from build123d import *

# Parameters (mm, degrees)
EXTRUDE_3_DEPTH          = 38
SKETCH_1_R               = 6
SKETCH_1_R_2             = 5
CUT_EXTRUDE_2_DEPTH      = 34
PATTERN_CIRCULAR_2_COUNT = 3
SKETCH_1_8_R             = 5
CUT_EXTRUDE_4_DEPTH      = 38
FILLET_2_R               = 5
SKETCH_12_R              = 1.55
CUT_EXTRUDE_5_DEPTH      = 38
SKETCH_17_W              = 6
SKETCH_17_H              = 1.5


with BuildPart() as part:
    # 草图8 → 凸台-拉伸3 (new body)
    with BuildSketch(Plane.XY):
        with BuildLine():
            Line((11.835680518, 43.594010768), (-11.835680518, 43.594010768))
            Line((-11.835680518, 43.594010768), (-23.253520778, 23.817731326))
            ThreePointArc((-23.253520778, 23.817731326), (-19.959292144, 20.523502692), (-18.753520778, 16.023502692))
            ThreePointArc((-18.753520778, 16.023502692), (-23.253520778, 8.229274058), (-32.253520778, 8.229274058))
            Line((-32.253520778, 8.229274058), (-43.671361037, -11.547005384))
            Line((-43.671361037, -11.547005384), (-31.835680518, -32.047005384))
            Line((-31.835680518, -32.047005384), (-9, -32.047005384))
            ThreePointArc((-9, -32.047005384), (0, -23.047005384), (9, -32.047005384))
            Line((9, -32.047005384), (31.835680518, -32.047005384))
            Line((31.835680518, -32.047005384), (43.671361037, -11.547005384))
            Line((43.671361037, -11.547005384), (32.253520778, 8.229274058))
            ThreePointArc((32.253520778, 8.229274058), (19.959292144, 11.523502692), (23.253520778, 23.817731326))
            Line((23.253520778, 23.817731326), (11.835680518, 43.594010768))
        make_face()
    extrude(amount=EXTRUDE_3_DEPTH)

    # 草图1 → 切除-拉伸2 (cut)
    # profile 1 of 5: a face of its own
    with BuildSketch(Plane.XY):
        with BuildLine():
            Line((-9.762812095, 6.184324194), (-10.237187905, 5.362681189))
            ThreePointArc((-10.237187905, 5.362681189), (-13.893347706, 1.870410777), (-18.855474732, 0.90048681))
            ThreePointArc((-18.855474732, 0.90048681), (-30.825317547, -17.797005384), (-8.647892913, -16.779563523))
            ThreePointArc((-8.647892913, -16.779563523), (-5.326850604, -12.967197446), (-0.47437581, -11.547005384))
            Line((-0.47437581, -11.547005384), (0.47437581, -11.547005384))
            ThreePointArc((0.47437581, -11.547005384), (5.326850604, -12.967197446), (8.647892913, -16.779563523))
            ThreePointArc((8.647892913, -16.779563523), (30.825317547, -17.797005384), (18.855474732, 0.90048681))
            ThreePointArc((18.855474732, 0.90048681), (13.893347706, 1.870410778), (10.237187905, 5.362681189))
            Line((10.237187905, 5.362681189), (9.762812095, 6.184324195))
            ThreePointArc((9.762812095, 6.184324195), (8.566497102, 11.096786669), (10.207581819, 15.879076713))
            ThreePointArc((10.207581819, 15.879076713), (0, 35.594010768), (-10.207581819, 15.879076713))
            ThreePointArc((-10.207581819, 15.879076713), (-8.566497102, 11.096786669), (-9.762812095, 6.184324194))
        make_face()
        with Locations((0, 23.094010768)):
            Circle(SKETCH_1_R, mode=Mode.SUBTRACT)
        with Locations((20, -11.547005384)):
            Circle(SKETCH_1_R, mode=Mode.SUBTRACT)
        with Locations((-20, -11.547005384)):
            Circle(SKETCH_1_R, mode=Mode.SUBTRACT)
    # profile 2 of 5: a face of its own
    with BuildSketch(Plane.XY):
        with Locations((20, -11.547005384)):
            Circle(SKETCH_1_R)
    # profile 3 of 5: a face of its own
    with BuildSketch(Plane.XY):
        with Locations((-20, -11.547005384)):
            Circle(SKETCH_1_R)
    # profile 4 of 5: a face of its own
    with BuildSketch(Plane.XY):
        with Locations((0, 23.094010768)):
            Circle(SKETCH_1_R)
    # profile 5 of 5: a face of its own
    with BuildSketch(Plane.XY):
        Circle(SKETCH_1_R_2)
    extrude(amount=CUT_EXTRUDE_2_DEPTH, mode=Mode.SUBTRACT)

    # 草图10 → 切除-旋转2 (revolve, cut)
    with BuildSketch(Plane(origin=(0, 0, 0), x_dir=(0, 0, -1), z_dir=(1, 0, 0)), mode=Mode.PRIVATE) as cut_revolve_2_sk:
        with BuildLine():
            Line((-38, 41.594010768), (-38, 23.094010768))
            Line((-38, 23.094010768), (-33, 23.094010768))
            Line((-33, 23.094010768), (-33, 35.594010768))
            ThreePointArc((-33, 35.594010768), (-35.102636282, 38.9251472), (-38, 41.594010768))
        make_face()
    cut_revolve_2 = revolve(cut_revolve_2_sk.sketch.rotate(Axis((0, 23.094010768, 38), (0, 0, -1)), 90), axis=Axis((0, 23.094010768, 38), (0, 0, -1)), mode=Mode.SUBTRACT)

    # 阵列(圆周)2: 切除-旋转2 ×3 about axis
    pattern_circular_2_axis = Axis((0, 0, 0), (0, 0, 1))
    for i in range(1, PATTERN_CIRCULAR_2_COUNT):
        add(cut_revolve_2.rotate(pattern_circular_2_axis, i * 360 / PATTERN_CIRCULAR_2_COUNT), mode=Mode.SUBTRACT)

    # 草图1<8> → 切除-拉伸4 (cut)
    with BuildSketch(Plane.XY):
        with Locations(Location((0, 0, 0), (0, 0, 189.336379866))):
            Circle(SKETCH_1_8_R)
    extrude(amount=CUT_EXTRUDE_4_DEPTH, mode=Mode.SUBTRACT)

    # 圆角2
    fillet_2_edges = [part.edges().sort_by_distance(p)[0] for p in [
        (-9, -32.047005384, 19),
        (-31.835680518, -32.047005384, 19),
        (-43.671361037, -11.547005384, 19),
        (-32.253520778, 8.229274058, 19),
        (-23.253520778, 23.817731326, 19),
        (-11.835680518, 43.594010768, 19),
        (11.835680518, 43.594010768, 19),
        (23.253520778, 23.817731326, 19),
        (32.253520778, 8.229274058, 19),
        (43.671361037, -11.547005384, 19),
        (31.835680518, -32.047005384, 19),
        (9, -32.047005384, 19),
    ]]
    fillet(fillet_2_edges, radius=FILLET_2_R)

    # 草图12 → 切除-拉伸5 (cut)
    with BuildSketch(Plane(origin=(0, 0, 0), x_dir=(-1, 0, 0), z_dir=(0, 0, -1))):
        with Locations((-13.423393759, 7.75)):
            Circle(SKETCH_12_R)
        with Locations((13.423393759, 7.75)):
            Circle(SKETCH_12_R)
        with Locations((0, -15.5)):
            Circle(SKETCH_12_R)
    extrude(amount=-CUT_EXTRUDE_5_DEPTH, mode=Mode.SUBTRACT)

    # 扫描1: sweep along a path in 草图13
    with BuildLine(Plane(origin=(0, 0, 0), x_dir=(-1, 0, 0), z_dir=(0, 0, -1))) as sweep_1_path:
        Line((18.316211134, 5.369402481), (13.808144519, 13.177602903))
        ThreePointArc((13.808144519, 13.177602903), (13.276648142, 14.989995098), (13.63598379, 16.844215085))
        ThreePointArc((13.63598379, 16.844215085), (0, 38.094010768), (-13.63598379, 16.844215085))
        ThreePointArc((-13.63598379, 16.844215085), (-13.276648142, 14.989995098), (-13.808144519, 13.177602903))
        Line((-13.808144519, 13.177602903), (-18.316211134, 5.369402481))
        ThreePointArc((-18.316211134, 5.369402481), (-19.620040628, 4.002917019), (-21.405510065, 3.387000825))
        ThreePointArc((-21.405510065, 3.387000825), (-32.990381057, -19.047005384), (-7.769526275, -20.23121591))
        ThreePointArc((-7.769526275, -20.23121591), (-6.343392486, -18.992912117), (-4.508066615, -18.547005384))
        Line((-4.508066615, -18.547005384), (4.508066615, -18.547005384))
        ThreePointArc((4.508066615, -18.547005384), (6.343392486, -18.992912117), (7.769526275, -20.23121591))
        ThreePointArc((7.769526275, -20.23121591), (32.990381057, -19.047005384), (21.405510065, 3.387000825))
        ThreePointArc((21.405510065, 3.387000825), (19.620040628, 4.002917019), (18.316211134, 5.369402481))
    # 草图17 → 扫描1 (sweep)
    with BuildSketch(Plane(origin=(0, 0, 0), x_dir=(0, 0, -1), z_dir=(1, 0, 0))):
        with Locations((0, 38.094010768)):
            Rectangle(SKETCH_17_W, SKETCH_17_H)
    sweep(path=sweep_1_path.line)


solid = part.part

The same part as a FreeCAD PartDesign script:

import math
import FreeCAD as App
import Part
import Sketcher

V = App.Vector
Q = App.Units.Quantity


def edges_at(feature, points):
    """Names of the edges that pass closest to the given points."""
    edges = feature.Shape.Edges
    near = lambda p: min(range(len(edges)), key=lambda i: edges[i].distToShape(Part.Vertex(*p))[0])
    return sorted({f"Edge{near(p) + 1}" for p in points})


def add_polygon(sketch, points):
    """Adds a closed chain of lines whose ends are joined by coincident constraints."""
    first, n = sketch.GeometryCount, len(points)
    for a, b in zip(points, points[1:] + points[:1]):
        sketch.addGeometry(Part.LineSegment(App.Vector(*a, 0), App.Vector(*b, 0)), False)
    for i in range(n):
        sketch.addConstraint(Sketcher.Constraint("Coincident", first + i, 2, first + (i + 1) % n, 1))

doc = App.newDocument("Part")
params = doc.addObject("Spreadsheet::Sheet", "Params")
for row, (alias, value) in enumerate([
    ("sketch1_radius", "9 mm"),
    ("pad1_length", "38 mm"),
    ("sketch2_radius", "9 mm"),
    ("sketch2_radius2", "12.5 mm"),
    ("pocket1_length", "34 mm"),
    ("sketch3_radius", "15 mm"),
    ("sketch3_height", "5 mm"),
    ("sketch3_width", "18.5 mm"),
    ("sketch3_width2", "12.5 mm"),
    ("groove_angle", "360 deg"),
    ("sketch4_diameter", "10 mm"),
    ("pocket2_length", "38 mm"),
    ("fillet_radius", "5 mm"),
    ("sketch5_diameter", "3.1 mm"),
    ("pocket3_length", "38 mm"),
    ("sketch6_height", "6 mm"),
    ("sketch6_width", "1.5 mm"),
    ("sketch7_radius", "4 mm"),
    ("sketch7_radius2", "15 mm"),
], start=1):
    params.set(f"A{row}", alias)
    params.set(f"B{row}", "=" + value)
    params.setAlias(f"B{row}", alias)

body = doc.addObject("PartDesign::Body", "Body")

sketch1 = body.newObject("Sketcher::SketchObject", "Sketch")
sketch1.AttachmentSupport = (doc.getObject("XY_Plane"), [""])
sketch1.MapMode = "FlatFace"
sketch1.addGeometry([
    Part.LineSegment(V(12, 44, 0), V(-12, 44, 0)),
    Part.LineSegment(V(-12, 44, 0), V(-23, 24, 0)),
    Part.ArcOfCircle(Part.Circle(V(-28, 16, 0), V(0, 0, 1), 9), math.radians(0), math.radians(60)),
    Part.ArcOfCircle(Part.Circle(V(-28, 16, 0), V(0, 0, 1), 9), math.radians(-120), math.radians(0)),
    Part.LineSegment(V(-32, 8, 0), V(-44, -12, 0)),
    Part.LineSegment(V(-44, -12, 0), V(-32, -32, 0)),
    Part.LineSegment(V(-32, -32, 0), V(-9, -32, 0)),
    Part.ArcOfCircle(Part.Circle(V(0, -32, 0), V(0, 0, 1), 9), math.radians(0), math.radians(180)),
    Part.LineSegment(V(9, -32, 0), V(32, -32, 0)),
    Part.LineSegment(V(32, -32, 0), V(44, -12, 0)),
    Part.LineSegment(V(44, -12, 0), V(32, 8, 0)),
    Part.ArcOfCircle(Part.Circle(V(28, 16, 0), V(0, 0, 1), 9), math.radians(120), math.radians(300)),
    Part.LineSegment(V(23, 24, 0), V(12, 44, 0)),
], False)
sketch1.addConstraint([
    Sketcher.Constraint("Coincident", 0, 2, 1, 1),
    Sketcher.Constraint("Coincident", 1, 2, 2, 2),
    Sketcher.Constraint("Tangent", 2, 1, 3, 2),
    Sketcher.Constraint("Coincident", 3, 1, 4, 1),
    Sketcher.Constraint("Coincident", 4, 2, 5, 1),
    Sketcher.Constraint("Coincident", 5, 2, 6, 1),
    Sketcher.Constraint("Coincident", 6, 2, 7, 2),
    Sketcher.Constraint("Coincident", 7, 1, 8, 1),
    Sketcher.Constraint("Coincident", 8, 2, 9, 1),
    Sketcher.Constraint("Coincident", 9, 2, 10, 1),
    Sketcher.Constraint("Coincident", 10, 2, 11, 2),
    Sketcher.Constraint("Coincident", 11, 1, 12, 1),
    Sketcher.Constraint("Coincident", 12, 2, 0, 1),
    Sketcher.Constraint("Horizontal", 0),
    Sketcher.Constraint("Horizontal", 6),
    Sketcher.Constraint("Horizontal", 8),
    Sketcher.Constraint("Equal", 2, 3),
    Sketcher.Constraint("Equal", 3, 7),
    Sketcher.Constraint("Equal", 7, 11),
    Sketcher.Constraint("Symmetric", 2, 3, 11, 3, -2),
    Sketcher.Constraint("Symmetric", 6, 2, 7, 1, -2),
    Sketcher.Constraint("Symmetric", 4, 2, 9, 2, -2),
    Sketcher.Constraint("Parallel", 1, 4),
    Sketcher.Constraint("Parallel", 4, 9),
    Sketcher.Constraint("Parallel", 5, 10),
    Sketcher.Constraint("Parallel", 10, 12),
    Sketcher.Constraint("Horizontal", 11, 3, 2, 1),
    Sketcher.Constraint("Horizontal", 7, 3, 5, 2),
    Sketcher.Constraint("Horizontal", 3, 1, 10, 2),
    Sketcher.Constraint("Horizontal", 1, 2, 11, 1),
    Sketcher.Constraint("Equal", 1, 4),
    Sketcher.Constraint("Radius", 2, Q("9 mm")),
    Sketcher.Constraint("Angle", 1, Q("-120 deg")),
    Sketcher.Constraint("DistanceX", 3, 1, 1, 2, Q("9 mm")),
    Sketcher.Constraint("DistanceX", 2, 3, 1, 2, Q("4.5 mm")),
    Sketcher.Constraint("DistanceY", 5, 2, 4, 2, Q("20.5 mm")),
    Sketcher.Constraint("DistanceX", 0, 2, 0, 1, Q("23.671361 mm")),
    Sketcher.Constraint("DistanceX", 6, 1, 6, 2, Q("22.835681 mm")),
    Sketcher.Constraint("DistanceY", -1, 1, 0, 2, Q("43.594011 mm")),
])
sketch1.setExpression("Constraints[31]", "Params.sketch1_radius")
pad1 = body.newObject("PartDesign::Pad", "Pad")
pad1.Profile = sketch1
pad1.setExpression("Length", "Params.pad1_length")

sketch2 = body.newObject("Sketcher::SketchObject", "Sketch001")
sketch2.AttachmentSupport = (doc.getObject("XY_Plane"), [""])
sketch2.MapMode = "FlatFace"
sketch2.addGeometry([
    Part.LineSegment(V(-9.8, 6.2, 0), V(-10.2, 5.4, 0)),
    Part.ArcOfCircle(Part.Circle(V(-18, 9.9, 0), V(0, 0, 1), 9), math.radians(-95), math.radians(-30)),
    Part.ArcOfCircle(Part.Circle(V(-20, -11.5, 0), V(0, 0, 1), 12.5), math.radians(85), math.radians(335)),
    Part.ArcOfCircle(Part.Circle(V(-0.5, -20.5, 0), V(0, 0, 1), 9), math.radians(90), math.radians(155)),
    Part.LineSegment(V(-0.5, -11.5, 0), V(0.5, -11.5, 0)),
    Part.ArcOfCircle(Part.Circle(V(0.5, -20.5, 0), V(0, 0, 1), 9), math.radians(25), math.radians(90)),
    Part.ArcOfCircle(Part.Circle(V(20, -11.5, 0), V(0, 0, 1), 12.5), math.radians(-155), math.radians(95)),
    Part.ArcOfCircle(Part.Circle(V(18, 9.9, 0), V(0, 0, 1), 9), math.radians(-150), math.radians(-85)),
    Part.LineSegment(V(10.2, 5.4, 0), V(9.8, 6.2, 0)),
    Part.ArcOfCircle(Part.Circle(V(17.6, 10.7, 0), V(0, 0, 1), 9), math.radians(145), math.radians(210)),
    Part.ArcOfCircle(Part.Circle(V(0, 23.1, 0), V(0, 0, 1), 12.5), math.radians(-35), math.radians(215)),
    Part.ArcOfCircle(Part.Circle(V(-17.6, 10.7, 0), V(0, 0, 1), 9), math.radians(-30), math.radians(35)),
], False)
sketch2.addConstraint([
    Sketcher.Constraint("Tangent", 0, 2, 1, 2),
    Sketcher.Constraint("Tangent", 1, 1, 2, 1),
    Sketcher.Constraint("Tangent", 2, 2, 3, 2),
    Sketcher.Constraint("Tangent", 3, 1, 4, 1),
    Sketcher.Constraint("Tangent", 4, 2, 5, 2),
    Sketcher.Constraint("Tangent", 5, 1, 6, 1),
    Sketcher.Constraint("Tangent", 6, 2, 7, 2),
    Sketcher.Constraint("Tangent", 7, 1, 8, 1),
    Sketcher.Constraint("Tangent", 8, 2, 9, 2),
    Sketcher.Constraint("Tangent", 9, 1, 10, 1),
    Sketcher.Constraint("Tangent", 10, 2, 11, 2),
    Sketcher.Constraint("Tangent", 11, 1, 0, 1),
    Sketcher.Constraint("Horizontal", 4),
    Sketcher.Constraint("Equal", 1, 3),
    Sketcher.Constraint("Equal", 3, 5),
    Sketcher.Constraint("Equal", 2, 6),
    Sketcher.Constraint("Equal", 5, 7),
    Sketcher.Constraint("Equal", 7, 9),
    Sketcher.Constraint("Equal", 6, 10),
    Sketcher.Constraint("Equal", 9, 11),
    Sketcher.Constraint("Symmetric", 2, 3, 6, 3, -2),
    Sketcher.Constraint("Symmetric", 9, 3, 11, 3, -2),
    Sketcher.Constraint("Horizontal", 1, 3, 7, 3),
    Sketcher.Constraint("Horizontal", 6, 3, 3, 1),
    Sketcher.Constraint("Radius", 1, Q("9 mm")),
    Sketcher.Constraint("Radius", 2, Q("12.5 mm")),
    Sketcher.Constraint("Angle", 0, Q("-120 deg")),
    Sketcher.Constraint("DistanceX", 2, 3, -1, 1, Q("20 mm")),
    Sketcher.Constraint("DistanceX", 1, 1, 3, 3, Q("18.381099 mm")),
    Sketcher.Constraint("Distance", 0, Q("0.948752 mm")),
    Sketcher.Constraint("DistanceY", -1, 1, 1, 3, Q("9.862681 mm")),
])
sketch2.setExpression("Constraints[24]", "Params.sketch2_radius")
sketch2.setExpression("Constraints[25]", "Params.sketch2_radius2")
pocket1 = body.newObject("PartDesign::Pocket", "Pocket")
pocket1.Profile = sketch2
pocket1.setExpression("Length", "Params.pocket1_length")
pocket1.Reversed = True

sketch3 = body.newObject("Sketcher::SketchObject", "Sketch002")
sketch3.AttachmentSupport = (doc.getObject("YZ_Plane"), [""])
sketch3.MapMode = "FlatFace"
sketch3.addGeometry([
    Part.LineSegment(V(42, 38, 0), V(23, 38, 0)),
    Part.LineSegment(V(23, 38, 0), V(23, 33, 0)),
    Part.LineSegment(V(23, 33, 0), V(36, 33, 0)),
    Part.ArcOfCircle(Part.Circle(V(29, 47, 0), V(0, 0, 1), 15), math.radians(-65), math.radians(-35)),
], False)
sketch3.addGeometry(Part.LineSegment(V(23, 47, 0), V(23, 33, 0)), True)
sketch3.addConstraint([
    Sketcher.Constraint("Coincident", 0, 2, 1, 1),
    Sketcher.Constraint("Coincident", 1, 2, 2, 1),
    Sketcher.Constraint("Coincident", 2, 2, 3, 1),
    Sketcher.Constraint("Coincident", 3, 2, 0, 1),
    Sketcher.Constraint("Horizontal", 0),
    Sketcher.Constraint("Vertical", 1),
    Sketcher.Constraint("Horizontal", 2),
    Sketcher.Constraint("Vertical", 4),
    Sketcher.Constraint("Coincident", 4, 2, 1, 2),
    Sketcher.Constraint("Horizontal", 3, 3, 4, 1),
    Sketcher.Constraint("Radius", 3, Q("15 mm")),
    Sketcher.Constraint("DistanceY", 1, 2, 1, 1, Q("5 mm")),
    Sketcher.Constraint("DistanceX", 0, 2, 0, 1, Q("18.5 mm")),
    Sketcher.Constraint("DistanceX", 2, 1, 2, 2, Q("12.5 mm")),
    Sketcher.Constraint("DistanceY", -1, 1, 0, 2, Q("38 mm")),
    Sketcher.Constraint("DistanceX", -1, 1, 3, 3, Q("29.322381 mm")),
])
sketch3.setExpression("Constraints[10]", "Params.sketch3_radius")
sketch3.setExpression("Constraints[11]", "Params.sketch3_height")
sketch3.setExpression("Constraints[12]", "Params.sketch3_width")
sketch3.setExpression("Constraints[13]", "Params.sketch3_width2")
groove = body.newObject("PartDesign::Groove", "Groove")
groove.Profile = sketch3
groove.ReferenceAxis = (sketch3, ["Axis0"])
groove.setExpression("Angle", "Params.groove_angle")
doc.recompute()

polarpattern = body.newObject("PartDesign::PolarPattern", "PolarPattern")
polarpattern.Originals = [groove]
polarpattern.Axis = (doc.getObject("Z_Axis"), [""])
polarpattern.Angle = 360
polarpattern.Occurrences = 3
body.Tip = polarpattern

sketch4 = body.newObject("Sketcher::SketchObject", "Sketch003")
sketch4.AttachmentSupport = (doc.getObject("XY_Plane"), [""])
sketch4.MapMode = "FlatFace"
sketch4.addGeometry(Part.Circle(V(0, 0, 0), V(0, 0, 1), 5), False)
sketch4.addConstraint([
    Sketcher.Constraint("Coincident", 0, 3, -1, 1),
    Sketcher.Constraint("Diameter", 0, Q("10 mm")),
])
sketch4.setExpression("Constraints[1]", "Params.sketch4_diameter")
pocket2 = body.newObject("PartDesign::Pocket", "Pocket001")
pocket2.Profile = sketch4
pocket2.setExpression("Length", "Params.pocket2_length")
pocket2.Reversed = True
doc.recompute()

fillet = body.newObject("PartDesign::Fillet", "Fillet")
fillet.Base = (pocket2, edges_at(pocket2, [
    (-9, -32.047, 19),
    (-31.836, -32.047, 19),
    (-43.671, -11.547, 19),
    (-32.254, 8.229, 19),
    (-23.254, 23.818, 19),
    (-11.836, 43.594, 19),
    (11.836, 43.594, 19),
    (23.254, 23.818, 19),
    (32.254, 8.229, 19),
    (43.671, -11.547, 19),
    (31.836, -32.047, 19),
    (9, -32.047, 19),
]))
fillet.setExpression("Radius", "Params.fillet_radius")

sketch5 = body.newObject("Sketcher::SketchObject", "Sketch004")
sketch5.AttachmentSupport = (doc.getObject("XY_Plane"), [""])
sketch5.MapMode = "FlatFace"
sketch5.addGeometry([
    Part.Circle(V(13.4, 7.8, 0), V(0, 0, 1), 1.6),
    Part.Circle(V(-13.4, 7.8, 0), V(0, 0, 1), 1.6),
    Part.Circle(V(0, -15.5, 0), V(0, 0, 1), 1.6),
], False)
sketch5.addConstraint([
    Sketcher.Constraint("Equal", 0, 1),
    Sketcher.Constraint("Equal", 1, 2),
    Sketcher.Constraint("Symmetric", 0, 3, 1, 3, -2),
    Sketcher.Constraint("PointOnObject", 2, 3, -2),
    Sketcher.Constraint("Diameter", 0, Q("3.1 mm")),
    Sketcher.Constraint("DistanceY", 2, 3, -1, 1, Q("15.5 mm")),
    Sketcher.Constraint("DistanceY", -1, 1, 0, 3, Q("7.75 mm")),
    Sketcher.Constraint("DistanceX", -1, 1, 0, 3, Q("13.423394 mm")),
])
sketch5.setExpression("Constraints[4]", "Params.sketch5_diameter")
pocket3 = body.newObject("PartDesign::Pocket", "Pocket002")
pocket3.Profile = sketch5
pocket3.setExpression("Length", "Params.pocket3_length")
pocket3.Reversed = True

sketch6 = body.newObject("Sketcher::SketchObject", "Sketch005")
sketch6.AttachmentSupport = (doc.getObject("YZ_Plane"), [""])
sketch6.MapMode = "FlatFace"
add_polygon(sketch6, [(38.8, 3), (37.3, 3), (37.3, -3), (38.8, -3)])
sketch6.addConstraint([
    Sketcher.Constraint("Horizontal", 0),
    Sketcher.Constraint("Vertical", 1),
    Sketcher.Constraint("Horizontal", 2),
    Sketcher.Constraint("Vertical", 3),
    Sketcher.Constraint("DistanceY", 1, 2, 1, 1, Q("6 mm")),
    Sketcher.Constraint("DistanceX", 0, 2, 0, 1, Q("1.5 mm")),
    Sketcher.Constraint("DistanceY", -1, 1, 0, 2, Q("3 mm")),
    Sketcher.Constraint("DistanceX", -1, 1, 0, 2, Q("37.344011 mm")),
])
sketch6.setExpression("Constraints[8]", "Params.sketch6_height")
sketch6.setExpression("Constraints[9]", "Params.sketch6_width")

sketch7 = body.newObject("Sketcher::SketchObject", "Sketch006")
sketch7.AttachmentSupport = (doc.getObject("XY_Plane"), [""])
sketch7.MapMode = "FlatFace"
sketch7.addGeometry([
    Part.LineSegment(V(-18.3, 5.4, 0), V(-13.8, 13.2, 0)),
    Part.ArcOfCircle(Part.Circle(V(-17.3, 15.2, 0), V(0, 0, 1), 4), math.radians(-30), math.radians(25)),
    Part.ArcOfCircle(Part.Circle(V(0, 23.1, 0), V(0, 0, 1), 15), math.radians(-25), math.radians(205)),
    Part.ArcOfCircle(Part.Circle(V(17.3, 15.2, 0), V(0, 0, 1), 4), math.radians(155), math.radians(210)),
    Part.LineSegment(V(13.8, 13.2, 0), V(18.3, 5.4, 0)),
    Part.ArcOfCircle(Part.Circle(V(21.8, 7.4, 0), V(0, 0, 1), 4), math.radians(-150), math.radians(-95)),
    Part.ArcOfCircle(Part.Circle(V(20, -11.5, 0), V(0, 0, 1), 15), math.radians(-145), math.radians(85)),
    Part.ArcOfCircle(Part.Circle(V(4.5, -22.5, 0), V(0, 0, 1), 4), math.radians(35), math.radians(90)),
    Part.LineSegment(V(4.5, -18.5, 0), V(-4.5, -18.5, 0)),
    Part.ArcOfCircle(Part.Circle(V(-4.5, -22.5, 0), V(0, 0, 1), 4), math.radians(90), math.radians(145)),
    Part.ArcOfCircle(Part.Circle(V(-20, -11.5, 0), V(0, 0, 1), 15), math.radians(95), math.radians(325)),
    Part.ArcOfCircle(Part.Circle(V(-21.8, 7.4, 0), V(0, 0, 1), 4), math.radians(-85), math.radians(-30)),
], False)
sketch7.addConstraint([
    Sketcher.Constraint("Tangent", 0, 2, 1, 1),
    Sketcher.Constraint("Tangent", 1, 2, 2, 2),
    Sketcher.Constraint("Tangent", 2, 1, 3, 1),
    Sketcher.Constraint("Tangent", 3, 2, 4, 1),
    Sketcher.Constraint("Tangent", 4, 2, 5, 1),
    Sketcher.Constraint("Tangent", 5, 2, 6, 2),
    Sketcher.Constraint("Tangent", 6, 1, 7, 1),
    Sketcher.Constraint("Tangent", 7, 2, 8, 1),
    Sketcher.Constraint("Tangent", 8, 2, 9, 1),
    Sketcher.Constraint("Tangent", 9, 2, 10, 2),
    Sketcher.Constraint("Tangent", 10, 1, 11, 1),
    Sketcher.Constraint("Tangent", 11, 2, 0, 1),
    Sketcher.Constraint("Horizontal", 8),
    Sketcher.Constraint("Equal", 1, 3),
    Sketcher.Constraint("Equal", 3, 5),
    Sketcher.Constraint("Equal", 2, 6),
    Sketcher.Constraint("Equal", 5, 7),
    Sketcher.Constraint("Equal", 7, 9),
    Sketcher.Constraint("Equal", 6, 10),
    Sketcher.Constraint("Equal", 9, 11),
    Sketcher.Constraint("Symmetric", 1, 3, 3, 3, -2),
    Sketcher.Constraint("Symmetric", 6, 3, 10, 3, -2),
    Sketcher.Constraint("Horizontal", 5, 3, 11, 3),
    Sketcher.Constraint("Radius", 1, Q("4 mm")),
    Sketcher.Constraint("Radius", 2, Q("15 mm")),
    Sketcher.Constraint("Angle", 0, Q("60 deg")),
    Sketcher.Constraint("DistanceX", -1, 1, 6, 3, Q("20 mm")),
    Sketcher.Constraint("DistanceY", 7, 3, 6, 3, Q("11 mm")),
    Sketcher.Constraint("DistanceY", -1, 1, 5, 2, Q("3.387001 mm")),
    Sketcher.Constraint("DistanceY", 5, 3, 3, 3, Q("7.8082 mm")),
    Sketcher.Constraint("DistanceX", 4, 2, 5, 2, Q("3.089299 mm")),
])
sketch7.setExpression("Constraints[23]", "Params.sketch7_radius")
sketch7.setExpression("Constraints[24]", "Params.sketch7_radius2")
doc.recompute()

additivepipe = body.newObject("PartDesign::AdditivePipe", "AdditivePipe")
additivepipe.Profile = sketch6
additivepipe.Spine = (sketch7, ["Edge1", "Edge2", "Edge3", "Edge4", "Edge5", "Edge6", "Edge7", "Edge8", "Edge9", "Edge10", "Edge11", "Edge12"])

doc.recompute()
